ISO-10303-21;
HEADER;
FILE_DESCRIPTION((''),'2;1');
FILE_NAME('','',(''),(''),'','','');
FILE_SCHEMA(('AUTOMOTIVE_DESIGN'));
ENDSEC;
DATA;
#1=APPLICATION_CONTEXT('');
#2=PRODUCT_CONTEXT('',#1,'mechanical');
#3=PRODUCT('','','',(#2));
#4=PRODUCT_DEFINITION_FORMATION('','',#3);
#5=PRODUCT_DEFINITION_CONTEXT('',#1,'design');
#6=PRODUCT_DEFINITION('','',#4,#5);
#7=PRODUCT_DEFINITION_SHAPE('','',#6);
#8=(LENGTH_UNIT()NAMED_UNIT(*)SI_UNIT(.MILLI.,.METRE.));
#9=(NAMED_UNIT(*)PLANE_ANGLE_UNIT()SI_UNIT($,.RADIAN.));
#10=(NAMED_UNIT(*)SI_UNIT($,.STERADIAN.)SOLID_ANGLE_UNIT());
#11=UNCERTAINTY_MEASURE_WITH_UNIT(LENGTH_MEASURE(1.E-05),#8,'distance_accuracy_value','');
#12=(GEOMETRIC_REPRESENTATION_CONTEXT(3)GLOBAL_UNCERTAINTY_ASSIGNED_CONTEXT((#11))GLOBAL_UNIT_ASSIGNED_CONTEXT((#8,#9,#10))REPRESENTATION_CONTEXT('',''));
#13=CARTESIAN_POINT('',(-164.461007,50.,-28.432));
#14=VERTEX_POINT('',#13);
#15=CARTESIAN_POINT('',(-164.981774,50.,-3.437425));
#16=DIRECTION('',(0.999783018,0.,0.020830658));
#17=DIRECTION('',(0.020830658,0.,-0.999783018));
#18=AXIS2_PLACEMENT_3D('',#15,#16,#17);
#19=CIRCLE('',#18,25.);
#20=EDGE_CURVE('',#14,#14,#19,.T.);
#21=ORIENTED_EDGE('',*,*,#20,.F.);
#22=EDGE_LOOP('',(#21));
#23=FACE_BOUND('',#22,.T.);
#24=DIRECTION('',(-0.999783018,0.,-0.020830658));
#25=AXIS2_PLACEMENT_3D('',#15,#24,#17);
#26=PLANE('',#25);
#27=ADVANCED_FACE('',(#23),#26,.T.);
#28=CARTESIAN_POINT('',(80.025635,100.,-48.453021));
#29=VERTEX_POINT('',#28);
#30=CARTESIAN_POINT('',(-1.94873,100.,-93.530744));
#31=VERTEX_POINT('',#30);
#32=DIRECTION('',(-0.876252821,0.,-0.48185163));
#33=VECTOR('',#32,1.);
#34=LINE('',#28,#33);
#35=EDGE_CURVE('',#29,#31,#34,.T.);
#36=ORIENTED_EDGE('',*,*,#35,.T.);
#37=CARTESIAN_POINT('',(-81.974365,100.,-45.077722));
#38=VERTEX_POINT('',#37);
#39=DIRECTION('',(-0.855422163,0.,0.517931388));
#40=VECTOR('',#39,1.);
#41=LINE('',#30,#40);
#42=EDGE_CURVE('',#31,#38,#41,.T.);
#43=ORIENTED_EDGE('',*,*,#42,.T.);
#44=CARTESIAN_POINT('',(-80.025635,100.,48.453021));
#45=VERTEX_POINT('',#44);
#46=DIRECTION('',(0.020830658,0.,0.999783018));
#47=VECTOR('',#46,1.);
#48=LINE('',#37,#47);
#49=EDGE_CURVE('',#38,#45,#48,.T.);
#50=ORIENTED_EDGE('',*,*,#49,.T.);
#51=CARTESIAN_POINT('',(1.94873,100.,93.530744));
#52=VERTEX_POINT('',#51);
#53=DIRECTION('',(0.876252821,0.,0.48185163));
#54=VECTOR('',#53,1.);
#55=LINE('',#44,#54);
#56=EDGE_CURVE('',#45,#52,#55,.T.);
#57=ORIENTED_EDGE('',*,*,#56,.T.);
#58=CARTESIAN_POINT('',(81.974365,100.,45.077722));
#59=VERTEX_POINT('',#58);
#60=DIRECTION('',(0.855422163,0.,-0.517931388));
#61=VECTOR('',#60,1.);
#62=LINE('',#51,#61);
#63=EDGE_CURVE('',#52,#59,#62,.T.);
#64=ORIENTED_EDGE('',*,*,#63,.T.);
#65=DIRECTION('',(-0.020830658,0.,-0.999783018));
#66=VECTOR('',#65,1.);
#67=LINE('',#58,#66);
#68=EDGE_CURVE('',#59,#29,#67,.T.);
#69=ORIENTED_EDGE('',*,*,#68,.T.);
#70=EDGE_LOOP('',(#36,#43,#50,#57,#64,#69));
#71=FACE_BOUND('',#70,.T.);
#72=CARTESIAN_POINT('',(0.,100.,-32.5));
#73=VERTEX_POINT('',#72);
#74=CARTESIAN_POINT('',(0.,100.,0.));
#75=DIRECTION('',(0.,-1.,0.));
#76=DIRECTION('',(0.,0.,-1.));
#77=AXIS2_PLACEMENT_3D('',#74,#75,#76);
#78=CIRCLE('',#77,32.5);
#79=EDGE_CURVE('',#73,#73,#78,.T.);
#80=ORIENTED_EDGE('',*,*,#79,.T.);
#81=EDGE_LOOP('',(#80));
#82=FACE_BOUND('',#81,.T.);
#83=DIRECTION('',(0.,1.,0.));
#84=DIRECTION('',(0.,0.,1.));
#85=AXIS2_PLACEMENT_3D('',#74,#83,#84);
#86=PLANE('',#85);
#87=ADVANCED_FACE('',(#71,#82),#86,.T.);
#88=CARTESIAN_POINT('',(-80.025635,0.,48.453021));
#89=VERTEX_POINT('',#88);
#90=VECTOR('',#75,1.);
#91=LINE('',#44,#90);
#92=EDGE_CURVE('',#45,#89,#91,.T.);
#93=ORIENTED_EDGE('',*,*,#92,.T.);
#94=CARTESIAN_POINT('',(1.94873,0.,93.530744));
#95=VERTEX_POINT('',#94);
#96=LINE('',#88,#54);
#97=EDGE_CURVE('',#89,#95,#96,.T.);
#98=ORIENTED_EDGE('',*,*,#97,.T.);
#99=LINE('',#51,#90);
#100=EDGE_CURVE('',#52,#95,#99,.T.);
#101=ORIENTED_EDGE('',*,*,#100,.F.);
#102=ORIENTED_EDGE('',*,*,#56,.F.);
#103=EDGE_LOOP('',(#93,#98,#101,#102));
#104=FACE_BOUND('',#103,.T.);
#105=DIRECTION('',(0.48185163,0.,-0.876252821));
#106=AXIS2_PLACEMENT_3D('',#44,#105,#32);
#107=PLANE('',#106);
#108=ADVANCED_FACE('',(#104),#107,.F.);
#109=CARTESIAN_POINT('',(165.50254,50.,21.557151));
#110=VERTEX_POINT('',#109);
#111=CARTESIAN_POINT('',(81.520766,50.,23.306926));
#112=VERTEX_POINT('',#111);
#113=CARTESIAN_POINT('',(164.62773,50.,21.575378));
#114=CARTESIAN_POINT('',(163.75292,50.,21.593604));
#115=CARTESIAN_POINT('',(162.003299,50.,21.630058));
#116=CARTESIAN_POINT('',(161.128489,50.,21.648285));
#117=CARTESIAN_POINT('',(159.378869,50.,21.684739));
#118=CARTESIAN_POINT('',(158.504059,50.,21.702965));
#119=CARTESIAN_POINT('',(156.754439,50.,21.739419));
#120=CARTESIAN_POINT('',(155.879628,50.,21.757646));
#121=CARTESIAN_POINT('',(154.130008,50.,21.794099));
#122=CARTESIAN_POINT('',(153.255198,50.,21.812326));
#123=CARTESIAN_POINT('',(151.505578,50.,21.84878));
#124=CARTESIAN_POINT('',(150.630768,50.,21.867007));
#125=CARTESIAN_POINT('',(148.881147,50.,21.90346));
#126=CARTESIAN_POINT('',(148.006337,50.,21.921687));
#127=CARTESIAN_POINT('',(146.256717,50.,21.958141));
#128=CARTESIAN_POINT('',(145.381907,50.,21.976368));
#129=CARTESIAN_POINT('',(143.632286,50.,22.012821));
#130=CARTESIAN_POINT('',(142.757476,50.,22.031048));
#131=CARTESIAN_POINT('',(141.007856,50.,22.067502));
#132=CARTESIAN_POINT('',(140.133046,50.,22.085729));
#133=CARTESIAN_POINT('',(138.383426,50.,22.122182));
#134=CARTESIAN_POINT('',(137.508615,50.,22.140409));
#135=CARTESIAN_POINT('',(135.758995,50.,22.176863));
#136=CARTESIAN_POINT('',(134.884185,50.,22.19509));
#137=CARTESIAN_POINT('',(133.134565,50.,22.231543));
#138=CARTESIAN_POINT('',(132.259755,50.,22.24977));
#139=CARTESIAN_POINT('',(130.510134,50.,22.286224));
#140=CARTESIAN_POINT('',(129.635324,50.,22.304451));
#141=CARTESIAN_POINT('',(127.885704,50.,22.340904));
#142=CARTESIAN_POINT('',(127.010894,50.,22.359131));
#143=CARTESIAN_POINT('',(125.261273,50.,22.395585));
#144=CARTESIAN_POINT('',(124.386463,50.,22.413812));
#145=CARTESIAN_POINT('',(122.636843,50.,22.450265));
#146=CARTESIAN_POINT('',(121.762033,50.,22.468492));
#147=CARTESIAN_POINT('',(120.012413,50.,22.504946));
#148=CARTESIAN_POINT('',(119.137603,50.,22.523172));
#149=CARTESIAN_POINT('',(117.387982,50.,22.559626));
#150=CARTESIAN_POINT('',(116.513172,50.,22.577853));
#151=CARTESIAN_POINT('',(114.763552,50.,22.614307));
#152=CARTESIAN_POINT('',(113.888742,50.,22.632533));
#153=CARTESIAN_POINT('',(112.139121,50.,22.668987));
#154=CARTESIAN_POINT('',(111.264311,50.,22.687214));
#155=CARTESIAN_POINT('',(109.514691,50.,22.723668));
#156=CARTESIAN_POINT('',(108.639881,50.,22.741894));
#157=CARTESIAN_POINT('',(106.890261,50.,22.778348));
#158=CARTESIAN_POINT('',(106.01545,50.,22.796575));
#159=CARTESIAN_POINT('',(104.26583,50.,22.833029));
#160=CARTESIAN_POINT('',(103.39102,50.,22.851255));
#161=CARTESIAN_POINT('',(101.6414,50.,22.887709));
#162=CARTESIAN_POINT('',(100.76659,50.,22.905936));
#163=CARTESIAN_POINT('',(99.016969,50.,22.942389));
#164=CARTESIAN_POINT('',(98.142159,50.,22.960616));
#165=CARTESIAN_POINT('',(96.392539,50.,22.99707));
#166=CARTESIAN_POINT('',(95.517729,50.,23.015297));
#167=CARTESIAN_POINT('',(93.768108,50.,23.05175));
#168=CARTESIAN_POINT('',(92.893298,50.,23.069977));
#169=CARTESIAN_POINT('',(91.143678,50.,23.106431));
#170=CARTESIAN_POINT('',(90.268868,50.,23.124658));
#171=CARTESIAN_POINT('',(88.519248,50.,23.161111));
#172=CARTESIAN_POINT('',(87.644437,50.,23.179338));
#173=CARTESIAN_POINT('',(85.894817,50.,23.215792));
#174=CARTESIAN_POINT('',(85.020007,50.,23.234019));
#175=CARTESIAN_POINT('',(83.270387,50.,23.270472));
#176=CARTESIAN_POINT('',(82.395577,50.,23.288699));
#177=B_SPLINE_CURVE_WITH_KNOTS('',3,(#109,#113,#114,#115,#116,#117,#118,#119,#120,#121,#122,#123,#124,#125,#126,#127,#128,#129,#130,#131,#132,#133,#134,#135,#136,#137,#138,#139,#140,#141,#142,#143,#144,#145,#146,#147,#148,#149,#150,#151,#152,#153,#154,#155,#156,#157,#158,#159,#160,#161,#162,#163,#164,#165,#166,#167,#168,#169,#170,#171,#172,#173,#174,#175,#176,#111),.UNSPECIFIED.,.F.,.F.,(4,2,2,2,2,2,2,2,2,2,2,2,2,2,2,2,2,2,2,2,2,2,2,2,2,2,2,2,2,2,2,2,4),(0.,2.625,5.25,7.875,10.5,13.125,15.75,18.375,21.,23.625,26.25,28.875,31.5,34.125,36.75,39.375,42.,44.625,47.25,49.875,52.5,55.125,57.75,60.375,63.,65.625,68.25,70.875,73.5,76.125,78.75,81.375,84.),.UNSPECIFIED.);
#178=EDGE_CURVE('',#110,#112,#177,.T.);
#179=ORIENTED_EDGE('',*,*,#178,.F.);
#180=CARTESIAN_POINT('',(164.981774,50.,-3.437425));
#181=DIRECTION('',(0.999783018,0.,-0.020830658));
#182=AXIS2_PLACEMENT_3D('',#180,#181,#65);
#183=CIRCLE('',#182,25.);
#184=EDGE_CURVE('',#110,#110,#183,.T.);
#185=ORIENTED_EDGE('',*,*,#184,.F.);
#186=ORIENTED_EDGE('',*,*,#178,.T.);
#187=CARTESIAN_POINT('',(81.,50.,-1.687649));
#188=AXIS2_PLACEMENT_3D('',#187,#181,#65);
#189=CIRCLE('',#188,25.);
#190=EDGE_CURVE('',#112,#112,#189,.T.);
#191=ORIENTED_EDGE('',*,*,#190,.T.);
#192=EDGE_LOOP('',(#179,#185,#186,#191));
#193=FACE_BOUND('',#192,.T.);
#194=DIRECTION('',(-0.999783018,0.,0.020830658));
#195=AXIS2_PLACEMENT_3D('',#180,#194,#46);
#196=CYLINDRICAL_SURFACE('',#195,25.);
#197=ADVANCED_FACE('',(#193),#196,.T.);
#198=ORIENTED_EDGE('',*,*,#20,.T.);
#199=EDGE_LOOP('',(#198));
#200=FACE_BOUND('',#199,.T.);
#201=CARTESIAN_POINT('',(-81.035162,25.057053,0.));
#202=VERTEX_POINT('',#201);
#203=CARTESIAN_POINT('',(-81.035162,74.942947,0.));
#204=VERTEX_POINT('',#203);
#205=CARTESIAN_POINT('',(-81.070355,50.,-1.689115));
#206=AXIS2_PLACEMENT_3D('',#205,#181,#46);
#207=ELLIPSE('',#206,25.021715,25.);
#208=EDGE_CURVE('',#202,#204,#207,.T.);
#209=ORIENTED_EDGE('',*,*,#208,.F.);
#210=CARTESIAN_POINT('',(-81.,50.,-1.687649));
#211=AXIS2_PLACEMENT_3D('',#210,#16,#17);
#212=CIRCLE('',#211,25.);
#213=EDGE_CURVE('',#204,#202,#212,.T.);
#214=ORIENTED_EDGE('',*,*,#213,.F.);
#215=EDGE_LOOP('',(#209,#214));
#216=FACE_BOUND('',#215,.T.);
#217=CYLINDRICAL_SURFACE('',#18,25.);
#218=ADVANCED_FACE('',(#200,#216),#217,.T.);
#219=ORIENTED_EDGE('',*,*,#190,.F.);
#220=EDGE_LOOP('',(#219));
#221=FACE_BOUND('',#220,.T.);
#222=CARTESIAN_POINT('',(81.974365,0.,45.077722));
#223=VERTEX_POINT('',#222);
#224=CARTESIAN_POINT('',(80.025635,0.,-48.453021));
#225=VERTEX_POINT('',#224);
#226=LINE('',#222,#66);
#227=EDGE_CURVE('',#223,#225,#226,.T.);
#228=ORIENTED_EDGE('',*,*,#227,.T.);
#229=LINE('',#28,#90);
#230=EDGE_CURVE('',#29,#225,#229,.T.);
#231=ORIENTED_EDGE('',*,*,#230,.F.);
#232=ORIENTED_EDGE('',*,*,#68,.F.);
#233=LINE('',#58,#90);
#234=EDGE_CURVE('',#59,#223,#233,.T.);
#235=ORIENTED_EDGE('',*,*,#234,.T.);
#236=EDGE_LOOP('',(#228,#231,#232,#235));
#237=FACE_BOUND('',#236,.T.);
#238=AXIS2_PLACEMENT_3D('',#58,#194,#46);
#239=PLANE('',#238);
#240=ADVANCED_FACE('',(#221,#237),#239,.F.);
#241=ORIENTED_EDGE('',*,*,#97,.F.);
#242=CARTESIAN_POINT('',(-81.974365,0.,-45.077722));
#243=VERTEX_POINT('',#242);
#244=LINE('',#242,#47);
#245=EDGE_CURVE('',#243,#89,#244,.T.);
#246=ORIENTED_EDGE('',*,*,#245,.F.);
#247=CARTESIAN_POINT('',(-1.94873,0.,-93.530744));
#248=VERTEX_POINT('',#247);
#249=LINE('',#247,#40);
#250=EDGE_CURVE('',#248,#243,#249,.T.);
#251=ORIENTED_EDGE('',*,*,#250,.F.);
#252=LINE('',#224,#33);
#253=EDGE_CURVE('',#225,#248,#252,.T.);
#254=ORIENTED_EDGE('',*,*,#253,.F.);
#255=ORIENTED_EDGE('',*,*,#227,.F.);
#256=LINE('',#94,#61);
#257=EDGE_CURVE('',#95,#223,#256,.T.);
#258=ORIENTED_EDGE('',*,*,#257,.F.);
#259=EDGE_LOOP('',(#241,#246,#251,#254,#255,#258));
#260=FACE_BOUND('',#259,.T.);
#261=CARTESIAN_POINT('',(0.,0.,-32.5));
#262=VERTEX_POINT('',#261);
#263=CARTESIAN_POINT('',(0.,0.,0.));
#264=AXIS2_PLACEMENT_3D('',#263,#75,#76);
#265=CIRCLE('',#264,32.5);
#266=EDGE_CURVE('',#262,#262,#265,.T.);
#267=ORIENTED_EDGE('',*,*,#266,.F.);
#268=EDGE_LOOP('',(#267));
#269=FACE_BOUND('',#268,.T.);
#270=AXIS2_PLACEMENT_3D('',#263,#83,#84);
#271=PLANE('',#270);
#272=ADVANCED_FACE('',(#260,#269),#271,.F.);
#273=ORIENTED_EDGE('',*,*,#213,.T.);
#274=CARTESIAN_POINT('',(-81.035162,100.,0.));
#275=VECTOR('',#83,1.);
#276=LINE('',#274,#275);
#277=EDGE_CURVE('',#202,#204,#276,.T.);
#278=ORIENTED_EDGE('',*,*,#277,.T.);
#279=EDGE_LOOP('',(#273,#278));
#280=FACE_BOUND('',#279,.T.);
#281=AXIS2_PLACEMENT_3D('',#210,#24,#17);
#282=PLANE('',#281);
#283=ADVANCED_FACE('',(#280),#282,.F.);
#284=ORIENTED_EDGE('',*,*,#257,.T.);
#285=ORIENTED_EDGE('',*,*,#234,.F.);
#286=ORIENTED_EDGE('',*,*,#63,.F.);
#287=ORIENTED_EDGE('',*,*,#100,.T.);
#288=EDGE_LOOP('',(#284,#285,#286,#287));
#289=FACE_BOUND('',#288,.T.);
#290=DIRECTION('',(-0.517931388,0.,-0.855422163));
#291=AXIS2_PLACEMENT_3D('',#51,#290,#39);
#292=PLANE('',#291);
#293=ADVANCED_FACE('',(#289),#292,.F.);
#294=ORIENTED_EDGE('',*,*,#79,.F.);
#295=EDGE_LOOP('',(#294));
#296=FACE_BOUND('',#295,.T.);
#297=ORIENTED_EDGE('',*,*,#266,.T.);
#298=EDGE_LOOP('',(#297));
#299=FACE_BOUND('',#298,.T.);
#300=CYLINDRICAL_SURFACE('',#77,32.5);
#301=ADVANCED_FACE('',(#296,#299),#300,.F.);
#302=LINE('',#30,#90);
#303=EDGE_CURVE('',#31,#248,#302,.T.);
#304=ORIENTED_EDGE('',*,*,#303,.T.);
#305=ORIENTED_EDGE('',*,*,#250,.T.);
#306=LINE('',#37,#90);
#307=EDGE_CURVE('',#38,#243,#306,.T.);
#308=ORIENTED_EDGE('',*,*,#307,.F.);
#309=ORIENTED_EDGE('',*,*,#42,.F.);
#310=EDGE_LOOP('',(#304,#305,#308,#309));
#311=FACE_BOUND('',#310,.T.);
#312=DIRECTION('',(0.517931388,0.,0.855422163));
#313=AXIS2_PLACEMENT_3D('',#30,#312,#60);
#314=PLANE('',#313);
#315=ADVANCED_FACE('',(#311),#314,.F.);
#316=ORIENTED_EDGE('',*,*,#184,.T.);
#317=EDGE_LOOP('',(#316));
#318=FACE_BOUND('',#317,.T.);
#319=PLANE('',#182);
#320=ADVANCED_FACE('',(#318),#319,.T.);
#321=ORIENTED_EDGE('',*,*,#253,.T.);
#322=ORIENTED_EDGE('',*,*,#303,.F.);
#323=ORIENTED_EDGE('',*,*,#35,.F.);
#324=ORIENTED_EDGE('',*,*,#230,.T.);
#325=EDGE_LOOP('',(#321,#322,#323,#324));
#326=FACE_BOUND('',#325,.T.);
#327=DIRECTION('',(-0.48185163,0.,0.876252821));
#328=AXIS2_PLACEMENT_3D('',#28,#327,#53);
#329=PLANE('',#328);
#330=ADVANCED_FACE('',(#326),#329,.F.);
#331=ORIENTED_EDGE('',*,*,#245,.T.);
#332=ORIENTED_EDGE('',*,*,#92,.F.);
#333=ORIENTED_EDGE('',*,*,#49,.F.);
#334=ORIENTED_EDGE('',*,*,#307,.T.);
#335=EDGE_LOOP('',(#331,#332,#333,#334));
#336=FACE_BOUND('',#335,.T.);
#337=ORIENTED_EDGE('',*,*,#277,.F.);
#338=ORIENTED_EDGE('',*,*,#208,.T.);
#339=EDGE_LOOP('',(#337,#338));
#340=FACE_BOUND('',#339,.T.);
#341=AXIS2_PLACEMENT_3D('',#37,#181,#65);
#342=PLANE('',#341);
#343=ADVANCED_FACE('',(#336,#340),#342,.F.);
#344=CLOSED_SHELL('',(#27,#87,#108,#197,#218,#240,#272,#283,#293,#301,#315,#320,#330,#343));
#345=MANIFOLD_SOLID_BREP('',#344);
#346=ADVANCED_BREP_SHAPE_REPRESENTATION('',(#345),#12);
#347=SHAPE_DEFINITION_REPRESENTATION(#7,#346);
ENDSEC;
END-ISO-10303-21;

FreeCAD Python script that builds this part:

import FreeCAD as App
import Part
import Sketcher

doc = App.newDocument("Part")
params = doc.addObject("Spreadsheet::Sheet", "Params")
for row, (alias, value) in enumerate([
    ("pad1_length", "100 mm"),
    ("sketch2_diameter", "65 mm"),
    ("sketch3_diameter", "50 mm"),
    ("pad2_length", "84 mm"),
], start=1):
    params.set(f"A{row}", alias)
    params.set(f"B{row}", "=" + value)
    params.setAlias(f"B{row}", alias)

body = doc.addObject("PartDesign::Body", "Body")

# Sketch on XZ plane
sketch1 = body.newObject("Sketcher::SketchObject", "Sketch")
sketch1.AttachmentSupport = (doc.getObject("XZ_Plane"), [""])
sketch1.MapMode = "FlatFace"
sketch1.addGeometry([
    Part.LineSegment(App.Vector(-80.025635, 48.453021, 0), App.Vector(1.94873, 93.530744, 0)),  # 0
    Part.LineSegment(App.Vector(1.94873, 93.530744, 0), App.Vector(81.974365, 45.077722, 0)),  # 1
    Part.LineSegment(App.Vector(81.974365, 45.077722, 0), App.Vector(80.025635, -48.453021, 0)),  # 2
    Part.LineSegment(App.Vector(80.025635, -48.453021, 0), App.Vector(-1.94873, -93.530744, 0)),  # 3
    Part.LineSegment(App.Vector(-1.94873, -93.530744, 0), App.Vector(-81.974365, -45.077722, 0)),  # 4
    Part.LineSegment(App.Vector(-81.974365, -45.077722, 0), App.Vector(-80.025635, 48.453021, 0)),  # 5
], False)
sketch1.addConstraint([
    Sketcher.Constraint("Coincident", 0, 2, 1, 1),
    Sketcher.Constraint("Coincident", 1, 2, 2, 1),
    Sketcher.Constraint("Coincident", 2, 2, 3, 1),
    Sketcher.Constraint("Coincident", 3, 2, 4, 1),
    Sketcher.Constraint("Coincident", 4, 2, 5, 1),
    Sketcher.Constraint("Coincident", 5, 2, 0, 1),
    Sketcher.Constraint("Symmetric", 0, 2, 3, 2, -1, 1),
    Sketcher.Constraint("Symmetric", 1, 2, 4, 2, -1, 1),
    Sketcher.Constraint("Symmetric", 2, 2, 5, 2, -1, 1),
    Sketcher.Constraint("Equal", 0, 1),
    Sketcher.Constraint("Equal", 1, 2),
    Sketcher.Constraint("DistanceX", 4, 2, 2, 2, 162.0),
    Sketcher.Constraint("DistanceY", 2, 2, 4, 2, 3.375299),
    Sketcher.Constraint("DistanceX", -1, 1, 0, 2, 1.94873),
    Sketcher.Constraint("DistanceY", 2, 2, -1, 1, 48.453021),
])
pad1 = body.newObject("PartDesign::Pad", "Pad")
pad1.Profile = sketch1
pad1.setExpression("Length", "Params.pad1_length")
pad1.Reversed = True

# Sketch on XZ plane
sketch2 = body.newObject("Sketcher::SketchObject", "Sketch001")
sketch2.AttachmentSupport = (doc.getObject("XZ_Plane"), [""])
sketch2.MapMode = "FlatFace"
sketch2.addGeometry(Part.Circle(App.Vector(0, 0, 0), App.Vector(0, 0, 1), 32.5), False)
sketch2.addConstraint([
    Sketcher.Constraint("Coincident", 0, 3, -1, 1),
    Sketcher.Constraint("Diameter", 0, 65.0),
])
sketch2.setExpression("Constraints[1]", "Params.sketch2_diameter")
pocket1 = body.newObject("PartDesign::Pocket", "Pocket")
pocket1.Profile = sketch2
pocket1.Type = "ThroughAll"

# Sketch on an angled plane
sketch3 = body.newObject("Sketcher::SketchObject", "Sketch002")
sketch3.Placement = App.Placement(App.Vector(81, 0, -1.687649), App.Rotation(App.Vector(-0.020830658, 0, -0.999783018), App.Vector(0, 0.999999999, 0), App.Vector(0.999783018, 0, -0.020830658), "ZXY"))
sketch3.addGeometry(Part.Circle(App.Vector(0, 50, 0), App.Vector(0, 0, 1), 25), False)
sketch3.addConstraint([
    Sketcher.Constraint("PointOnObject", 0, 3, -2),
    Sketcher.Constraint("Diameter", 0, 50.0),
    Sketcher.Constraint("DistanceY", -1, 1, 0, 3, 50.0),
])
sketch3.setExpression("Constraints[1]", "Params.sketch3_diameter")
pad2 = body.newObject("PartDesign::Pad", "Pad001")
pad2.Profile = sketch3
pad2.setExpression("Length", "Params.pad2_length")
doc.recompute()

mirrored = body.newObject("PartDesign::Mirrored", "Mirrored")
mirrored.Originals = [pad2]
mirrored.MirrorPlane = (doc.getObject("YZ_Plane"), [""])
body.Tip = mirrored

doc.recompute()
